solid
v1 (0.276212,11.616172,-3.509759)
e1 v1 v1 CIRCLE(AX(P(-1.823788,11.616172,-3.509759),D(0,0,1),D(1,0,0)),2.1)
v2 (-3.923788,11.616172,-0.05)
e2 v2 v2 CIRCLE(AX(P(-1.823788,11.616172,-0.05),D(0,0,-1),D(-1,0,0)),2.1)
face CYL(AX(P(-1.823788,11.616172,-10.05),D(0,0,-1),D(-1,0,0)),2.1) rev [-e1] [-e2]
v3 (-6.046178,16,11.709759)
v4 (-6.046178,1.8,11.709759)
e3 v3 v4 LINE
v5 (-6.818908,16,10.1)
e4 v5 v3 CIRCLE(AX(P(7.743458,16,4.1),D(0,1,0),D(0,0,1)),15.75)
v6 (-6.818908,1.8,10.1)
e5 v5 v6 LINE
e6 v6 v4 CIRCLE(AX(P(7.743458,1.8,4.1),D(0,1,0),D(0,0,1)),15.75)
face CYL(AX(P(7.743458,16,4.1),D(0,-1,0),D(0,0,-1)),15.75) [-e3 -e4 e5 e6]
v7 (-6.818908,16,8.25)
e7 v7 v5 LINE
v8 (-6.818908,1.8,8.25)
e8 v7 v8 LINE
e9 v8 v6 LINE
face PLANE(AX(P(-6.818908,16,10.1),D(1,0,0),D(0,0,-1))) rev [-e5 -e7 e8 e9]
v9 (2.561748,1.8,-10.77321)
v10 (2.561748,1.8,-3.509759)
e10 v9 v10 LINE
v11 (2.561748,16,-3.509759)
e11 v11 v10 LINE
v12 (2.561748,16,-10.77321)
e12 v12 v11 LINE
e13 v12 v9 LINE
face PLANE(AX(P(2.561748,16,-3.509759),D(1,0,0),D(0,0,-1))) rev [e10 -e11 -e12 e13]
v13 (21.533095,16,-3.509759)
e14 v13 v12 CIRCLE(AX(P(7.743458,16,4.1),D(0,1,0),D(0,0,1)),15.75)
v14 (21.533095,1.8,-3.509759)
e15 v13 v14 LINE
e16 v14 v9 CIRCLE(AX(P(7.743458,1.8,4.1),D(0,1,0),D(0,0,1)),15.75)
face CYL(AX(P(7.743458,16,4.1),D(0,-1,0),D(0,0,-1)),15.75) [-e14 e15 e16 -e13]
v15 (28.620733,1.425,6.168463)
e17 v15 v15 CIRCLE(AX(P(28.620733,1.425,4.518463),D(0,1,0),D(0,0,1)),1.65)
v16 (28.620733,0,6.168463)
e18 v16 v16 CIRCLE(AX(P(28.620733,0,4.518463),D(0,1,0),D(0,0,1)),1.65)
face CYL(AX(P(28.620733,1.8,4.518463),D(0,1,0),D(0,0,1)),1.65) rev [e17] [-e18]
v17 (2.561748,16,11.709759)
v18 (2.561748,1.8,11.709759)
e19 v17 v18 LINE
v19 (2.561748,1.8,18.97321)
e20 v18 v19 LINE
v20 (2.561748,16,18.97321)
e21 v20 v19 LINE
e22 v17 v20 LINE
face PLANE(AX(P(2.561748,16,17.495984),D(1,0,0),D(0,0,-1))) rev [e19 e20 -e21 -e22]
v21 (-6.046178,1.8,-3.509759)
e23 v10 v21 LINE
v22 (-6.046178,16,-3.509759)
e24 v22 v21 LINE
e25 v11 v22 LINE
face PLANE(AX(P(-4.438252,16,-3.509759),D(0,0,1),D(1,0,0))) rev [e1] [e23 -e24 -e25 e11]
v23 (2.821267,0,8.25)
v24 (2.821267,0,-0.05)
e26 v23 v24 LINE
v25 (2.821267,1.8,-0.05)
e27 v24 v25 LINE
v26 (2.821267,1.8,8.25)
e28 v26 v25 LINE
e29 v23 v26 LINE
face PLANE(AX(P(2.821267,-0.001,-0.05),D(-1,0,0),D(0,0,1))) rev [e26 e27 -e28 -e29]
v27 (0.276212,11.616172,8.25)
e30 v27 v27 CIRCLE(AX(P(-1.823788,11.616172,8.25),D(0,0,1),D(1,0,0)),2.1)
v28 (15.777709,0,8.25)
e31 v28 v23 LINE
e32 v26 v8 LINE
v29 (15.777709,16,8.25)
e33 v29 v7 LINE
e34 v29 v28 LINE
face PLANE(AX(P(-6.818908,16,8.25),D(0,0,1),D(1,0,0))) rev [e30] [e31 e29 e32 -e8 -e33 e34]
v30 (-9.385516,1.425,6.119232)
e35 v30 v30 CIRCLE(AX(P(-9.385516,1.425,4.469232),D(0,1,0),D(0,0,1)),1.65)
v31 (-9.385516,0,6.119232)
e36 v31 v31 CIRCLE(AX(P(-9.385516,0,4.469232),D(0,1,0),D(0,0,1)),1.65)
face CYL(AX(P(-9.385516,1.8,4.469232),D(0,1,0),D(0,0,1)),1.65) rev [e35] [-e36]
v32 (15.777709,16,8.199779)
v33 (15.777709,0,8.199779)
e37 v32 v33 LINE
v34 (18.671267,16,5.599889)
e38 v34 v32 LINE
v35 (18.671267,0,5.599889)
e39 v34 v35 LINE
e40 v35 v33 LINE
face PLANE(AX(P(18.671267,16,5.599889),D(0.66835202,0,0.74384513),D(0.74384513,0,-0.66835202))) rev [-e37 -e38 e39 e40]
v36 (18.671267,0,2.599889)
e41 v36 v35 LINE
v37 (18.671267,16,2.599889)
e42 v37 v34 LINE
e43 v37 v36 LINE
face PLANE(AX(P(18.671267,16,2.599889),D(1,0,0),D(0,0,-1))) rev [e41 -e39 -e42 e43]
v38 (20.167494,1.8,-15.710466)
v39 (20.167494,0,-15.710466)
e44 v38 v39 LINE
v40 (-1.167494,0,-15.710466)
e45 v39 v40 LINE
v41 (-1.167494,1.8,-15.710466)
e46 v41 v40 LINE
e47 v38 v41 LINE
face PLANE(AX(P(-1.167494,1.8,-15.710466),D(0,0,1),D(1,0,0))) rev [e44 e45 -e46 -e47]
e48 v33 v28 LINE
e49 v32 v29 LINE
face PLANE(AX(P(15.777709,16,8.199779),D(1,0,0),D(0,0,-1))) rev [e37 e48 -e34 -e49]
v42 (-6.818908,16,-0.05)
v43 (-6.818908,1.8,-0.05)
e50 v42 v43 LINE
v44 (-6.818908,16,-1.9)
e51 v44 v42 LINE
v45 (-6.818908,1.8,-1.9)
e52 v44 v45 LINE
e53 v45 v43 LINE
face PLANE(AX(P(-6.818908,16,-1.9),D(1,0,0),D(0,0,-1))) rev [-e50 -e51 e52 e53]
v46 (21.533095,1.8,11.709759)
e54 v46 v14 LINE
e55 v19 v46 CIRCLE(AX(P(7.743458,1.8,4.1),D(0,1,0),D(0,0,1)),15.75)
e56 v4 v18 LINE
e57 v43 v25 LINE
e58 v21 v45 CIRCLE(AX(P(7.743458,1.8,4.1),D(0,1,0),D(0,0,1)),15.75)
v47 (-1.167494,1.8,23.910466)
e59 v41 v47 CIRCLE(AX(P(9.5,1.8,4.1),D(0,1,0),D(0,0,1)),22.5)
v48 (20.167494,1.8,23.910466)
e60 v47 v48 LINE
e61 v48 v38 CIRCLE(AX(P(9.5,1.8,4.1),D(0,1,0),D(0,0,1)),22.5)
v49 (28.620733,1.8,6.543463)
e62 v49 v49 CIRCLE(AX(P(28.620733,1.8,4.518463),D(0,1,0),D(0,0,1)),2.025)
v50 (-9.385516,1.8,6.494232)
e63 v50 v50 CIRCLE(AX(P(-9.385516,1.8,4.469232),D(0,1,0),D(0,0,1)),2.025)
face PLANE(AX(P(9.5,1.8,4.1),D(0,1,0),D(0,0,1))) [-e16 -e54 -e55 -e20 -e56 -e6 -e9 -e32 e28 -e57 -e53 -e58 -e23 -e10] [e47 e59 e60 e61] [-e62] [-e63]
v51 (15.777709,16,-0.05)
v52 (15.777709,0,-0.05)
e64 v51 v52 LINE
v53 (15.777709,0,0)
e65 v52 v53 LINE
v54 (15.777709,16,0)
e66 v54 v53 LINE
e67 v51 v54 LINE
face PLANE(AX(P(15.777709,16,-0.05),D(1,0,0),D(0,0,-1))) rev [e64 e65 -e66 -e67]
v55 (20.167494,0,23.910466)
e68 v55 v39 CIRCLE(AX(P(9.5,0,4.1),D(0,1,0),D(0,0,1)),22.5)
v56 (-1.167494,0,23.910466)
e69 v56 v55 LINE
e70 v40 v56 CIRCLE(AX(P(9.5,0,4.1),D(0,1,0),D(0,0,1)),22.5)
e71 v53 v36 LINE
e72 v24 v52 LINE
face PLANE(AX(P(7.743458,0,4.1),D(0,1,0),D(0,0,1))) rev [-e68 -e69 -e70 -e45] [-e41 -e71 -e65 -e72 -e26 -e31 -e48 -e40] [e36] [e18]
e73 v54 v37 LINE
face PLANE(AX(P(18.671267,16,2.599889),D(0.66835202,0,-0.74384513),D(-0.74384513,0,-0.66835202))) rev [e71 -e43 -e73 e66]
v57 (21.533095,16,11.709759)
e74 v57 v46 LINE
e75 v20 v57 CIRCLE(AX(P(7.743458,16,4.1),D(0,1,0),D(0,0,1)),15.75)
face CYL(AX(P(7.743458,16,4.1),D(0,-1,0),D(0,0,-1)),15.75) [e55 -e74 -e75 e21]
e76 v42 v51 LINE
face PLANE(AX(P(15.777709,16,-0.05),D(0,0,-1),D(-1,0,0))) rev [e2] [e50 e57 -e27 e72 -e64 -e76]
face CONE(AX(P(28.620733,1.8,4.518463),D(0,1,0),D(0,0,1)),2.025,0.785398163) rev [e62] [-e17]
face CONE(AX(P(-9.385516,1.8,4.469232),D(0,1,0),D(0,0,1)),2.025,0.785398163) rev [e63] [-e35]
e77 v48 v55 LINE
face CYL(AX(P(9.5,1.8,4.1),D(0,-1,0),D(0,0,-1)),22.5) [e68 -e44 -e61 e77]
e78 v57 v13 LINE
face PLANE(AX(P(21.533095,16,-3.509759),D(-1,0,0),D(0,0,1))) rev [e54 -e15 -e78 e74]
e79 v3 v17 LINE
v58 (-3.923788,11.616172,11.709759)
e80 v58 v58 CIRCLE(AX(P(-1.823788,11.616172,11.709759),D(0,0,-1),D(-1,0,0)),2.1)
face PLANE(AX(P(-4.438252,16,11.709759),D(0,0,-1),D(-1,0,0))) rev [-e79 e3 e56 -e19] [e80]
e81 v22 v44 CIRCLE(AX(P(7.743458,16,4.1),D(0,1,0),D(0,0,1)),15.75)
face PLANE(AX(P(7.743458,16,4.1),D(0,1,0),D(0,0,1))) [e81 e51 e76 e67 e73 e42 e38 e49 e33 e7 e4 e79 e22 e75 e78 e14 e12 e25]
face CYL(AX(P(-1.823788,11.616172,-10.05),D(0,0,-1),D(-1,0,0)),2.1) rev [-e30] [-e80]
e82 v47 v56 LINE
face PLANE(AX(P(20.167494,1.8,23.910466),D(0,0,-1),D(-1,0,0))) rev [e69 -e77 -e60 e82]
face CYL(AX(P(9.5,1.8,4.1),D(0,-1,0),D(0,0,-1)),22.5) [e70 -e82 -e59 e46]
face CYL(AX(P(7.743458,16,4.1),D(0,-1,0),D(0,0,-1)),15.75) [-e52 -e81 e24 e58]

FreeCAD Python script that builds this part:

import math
import FreeCAD as App
import Part
import Sketcher
Q = App.Units.Quantity

doc = App.newDocument("Part")
body = doc.addObject("PartDesign::Body", "Body")

# Sketch on XZ plane
sketch1 = doc.addObject("Sketcher::SketchObject", "Sketch")
body.addObject(sketch1)
sketch1.AttachmentSupport = (doc.XZ_Plane, [""])
sketch1.MapMode = "FlatFace"
sketch1.addGeometry([
    Part.LineSegment(App.Vector(2.56, -3.51, 0), App.Vector(-6.05, -3.51, 0)),  # 0
    Part.ArcOfCircle(Part.Circle(App.Vector(7.74, 4.1, 0), App.Vector(0, 0, 1), 15.75), math.radians(-157.61), math.radians(-151.11)),  # 1
    Part.LineSegment(App.Vector(-6.82, -1.9, 0), App.Vector(-6.82, -0.05, 0)),  # 2
    Part.LineSegment(App.Vector(-6.82, -0.05, 0), App.Vector(15.78, -0.05, 0)),  # 3
    Part.LineSegment(App.Vector(15.78, -0.05, 0), App.Vector(15.78, 0, 0)),  # 4
    Part.LineSegment(App.Vector(15.78, 0, 0), App.Vector(18.67, 2.6, 0)),  # 5
    Part.LineSegment(App.Vector(18.67, 2.6, 0), App.Vector(18.67, 5.6, 0)),  # 6
    Part.LineSegment(App.Vector(18.67, 5.6, 0), App.Vector(15.78, 8.2, 0)),  # 7
    Part.LineSegment(App.Vector(15.78, 8.2, 0), App.Vector(15.78, 8.25, 0)),  # 8
    Part.LineSegment(App.Vector(15.78, 8.25, 0), App.Vector(-6.82, 8.25, 0)),  # 9
    Part.LineSegment(App.Vector(-6.82, 8.25, 0), App.Vector(-6.82, 10.1, 0)),  # 10
    Part.ArcOfCircle(Part.Circle(App.Vector(7.74, 4.1, 0), App.Vector(0, 0, 1), 15.75), math.radians(151.11), math.radians(157.61)),  # 11
    Part.LineSegment(App.Vector(-6.05, 11.71, 0), App.Vector(2.56, 11.71, 0)),  # 12
    Part.LineSegment(App.Vector(2.56, 11.71, 0), App.Vector(2.56, 18.97, 0)),  # 13
    Part.ArcOfCircle(Part.Circle(App.Vector(7.74, 4.1, 0), App.Vector(0, 0, 1), 15.75), math.radians(29), math.radians(109)),  # 14
    Part.LineSegment(App.Vector(21.53, 11.71, 0), App.Vector(21.53, -3.51, 0)),  # 15
    Part.ArcOfCircle(Part.Circle(App.Vector(7.74, 4.1, 0), App.Vector(0, 0, 1), 15.75), math.radians(-109), math.radians(-29)),  # 16
    Part.LineSegment(App.Vector(2.56, -10.77, 0), App.Vector(2.56, -3.51, 0)),  # 17
], False)
sketch1.addConstraint([
    Sketcher.Constraint("Coincident", 0, 2, 1, 2),
    Sketcher.Constraint("Coincident", 1, 1, 2, 1),
    Sketcher.Constraint("Coincident", 2, 2, 3, 1),
    Sketcher.Constraint("Coincident", 3, 2, 4, 1),
    Sketcher.Constraint("Coincident", 4, 2, 5, 1),
    Sketcher.Constraint("Coincident", 5, 2, 6, 1),
    Sketcher.Constraint("Coincident", 6, 2, 7, 1),
    Sketcher.Constraint("Coincident", 7, 2, 8, 1),
    Sketcher.Constraint("Coincident", 8, 2, 9, 1),
    Sketcher.Constraint("Coincident", 9, 2, 10, 1),
    Sketcher.Constraint("Coincident", 10, 2, 11, 2),
    Sketcher.Constraint("Coincident", 11, 1, 12, 1),
    Sketcher.Constraint("Coincident", 12, 2, 13, 1),
    Sketcher.Constraint("Coincident", 13, 2, 14, 2),
    Sketcher.Constraint("Coincident", 14, 1, 15, 1),
    Sketcher.Constraint("Coincident", 15, 2, 16, 2),
    Sketcher.Constraint("Coincident", 16, 1, 17, 1),
    Sketcher.Constraint("Coincident", 17, 2, 0, 1),
    Sketcher.Constraint("Horizontal", 0),
    Sketcher.Constraint("Vertical", 2),
    Sketcher.Constraint("Horizontal", 3),
    Sketcher.Constraint("Vertical", 4),
    Sketcher.Constraint("Vertical", 6),
    Sketcher.Constraint("Vertical", 8),
    Sketcher.Constraint("Horizontal", 9),
    Sketcher.Constraint("Vertical", 10),
    Sketcher.Constraint("Horizontal", 12),
    Sketcher.Constraint("Vertical", 13),
    Sketcher.Constraint("Vertical", 15),
    Sketcher.Constraint("Vertical", 17),
    Sketcher.Constraint("Coincident", 11, 3, 1, 3),
    Sketcher.Constraint("Coincident", 14, 3, 1, 3),
    Sketcher.Constraint("Coincident", 16, 3, 1, 3),
    Sketcher.Constraint("Equal", 1, 11),
    Sketcher.Constraint("Equal", 11, 14),
    Sketcher.Constraint("Equal", 14, 16),
    Sketcher.Constraint("PointOnObject", 4, 2, -1),
    Sketcher.Constraint("Horizontal", 12, 2, 14, 1),
    Sketcher.Constraint("Horizontal", 0, 2, 15, 2),
    Sketcher.Constraint("Vertical", 4, 2, 7, 2),
    Sketcher.Constraint("Vertical", 2, 2, 9, 2),
    Sketcher.Constraint("Vertical", 13, 2, 16, 1),
    Sketcher.Constraint("Equal", 2, 10),
    Sketcher.Constraint("Equal", 5, 7),
    Sketcher.Constraint("DistanceY", 6, 1, 6, 2, Q("3 mm")),
    Sketcher.Constraint("Radius", 1, Q("15.75 mm")),
    Sketcher.Constraint("DistanceY", 1, 1, 1, 3, Q("6 mm")),
    Sketcher.Constraint("DistanceY", 2, 1, 2, 2, Q("1.85 mm")),
    Sketcher.Constraint("DistanceY", 4, 1, 4, 2, Q("0.05 mm")),
    Sketcher.Constraint("Angle", 5, Q("41.94 deg")),
    Sketcher.Constraint("Distance", 5, Q("3.89 mm")),
    Sketcher.Constraint("DistanceY", 13, 1, 13, 2, Q("7.263451 mm")),
    Sketcher.Constraint("DistanceX", 0, 2, 0, 1, Q("8.607926 mm")),
    Sketcher.Constraint("DistanceX", 3, 1, 3, 2, Q("22.596617 mm")),
    Sketcher.Constraint("DistanceX", -1, 1, 1, 3, Q("7.743458 mm")),
])
pad1 = doc.addObject("PartDesign::Pad", "Pad")
body.addObject(pad1)
pad1.Profile = sketch1
pad1.Length = 16
pad1.Reversed = True

# Sketch on XZ plane
sketch2 = doc.addObject("Sketcher::SketchObject", "Sketch001")
body.addObject(sketch2)
sketch2.AttachmentSupport = (doc.XZ_Plane, [""])
sketch2.MapMode = "FlatFace"
sketch2.addGeometry([
    Part.LineSegment(App.Vector(20, -16, 0), App.Vector(-1, -16, 0)),
    Part.ArcOfCircle(Part.Circle(App.Vector(10, 4, 0), App.Vector(0, 0, 1), 22), math.radians(118), math.radians(242)),
    Part.LineSegment(App.Vector(-1, 24, 0), App.Vector(20, 24, 0)),
    Part.ArcOfCircle(Part.Circle(App.Vector(10, 4, 0), App.Vector(0, 0, 1), 22), math.radians(-62), math.radians(62)),
], False)
sketch2.addConstraint([
    Sketcher.Constraint("Coincident", 0, 2, 1, 2),
    Sketcher.Constraint("Coincident", 1, 1, 2, 1),
    Sketcher.Constraint("Coincident", 2, 2, 3, 2),
    Sketcher.Constraint("Coincident", 3, 1, 0, 1),
    Sketcher.Constraint("Horizontal", 0),
    Sketcher.Constraint("Horizontal", 2),
    Sketcher.Constraint("Coincident", 3, 3, 1, 3),
    Sketcher.Constraint("Equal", 1, 3),
    Sketcher.Constraint("Vertical", 0, 2, 1, 1),
    Sketcher.Constraint("Radius", 1, Q("22.5 mm")),
    Sketcher.Constraint("DistanceX", -1, 1, 1, 3, Q("9.5 mm")),
    Sketcher.Constraint("DistanceY", -1, 1, 1, 3, Q("4.1 mm")),
    Sketcher.Constraint("DistanceX", 0, 2, 0, 1, Q("21.334989 mm")),
])
pad2 = doc.addObject("PartDesign::Pad", "Pad001")
body.addObject(pad2)
pad2.Profile = sketch2
pad2.Length = 1.8
pad2.Reversed = True

# Sketch on YZ plane
sketch3 = doc.addObject("Sketcher::SketchObject", "Sketch002")
body.addObject(sketch3)
sketch3.AttachmentSupport = (doc.YZ_Plane, [""])
sketch3.MapMode = "FlatFace"
sketch3.AttachmentOffset = App.Placement(App.Vector(0, 0, 28.620733), App.Rotation())
sketch3.addGeometry([
    Part.LineSegment(App.Vector(0, 4.5, 0), App.Vector(1.8, 4.5, 0)),  # 0
    Part.LineSegment(App.Vector(1.8, 4.5, 0), App.Vector(1.8, 6.5, 0)),  # 1
    Part.LineSegment(App.Vector(1.8, 6.5, 0), App.Vector(1.4, 6.2, 0)),  # 2
    Part.LineSegment(App.Vector(1.4, 6.2, 0), App.Vector(0, 6.2, 0)),  # 3
    Part.LineSegment(App.Vector(0, 6.2, 0), App.Vector(0, 4.5, 0)),  # 4
], False)
sketch3.addGeometry(Part.LineSegment(App.Vector(1.8, 4.5, 0), App.Vector(0, 4.5, 0)), True)  # axis
sketch3.addConstraint([
    Sketcher.Constraint("Coincident", 0, 2, 1, 1),
    Sketcher.Constraint("Coincident", 1, 2, 2, 1),
    Sketcher.Constraint("Coincident", 2, 2, 3, 1),
    Sketcher.Constraint("Coincident", 3, 2, 4, 1),
    Sketcher.Constraint("Coincident", 4, 2, 0, 1),
    Sketcher.Constraint("Horizontal", 0),
    Sketcher.Constraint("Vertical", 1),
    Sketcher.Constraint("Horizontal", 3),
    Sketcher.Constraint("Vertical", 4),
    Sketcher.Constraint("Horizontal", 5),
    Sketcher.Constraint("Coincident", 5, 1, 0, 2),
    Sketcher.Constraint("PointOnObject", 3, 2, -2),
    Sketcher.Constraint("PointOnObject", 5, 2, -2),
    Sketcher.Constraint("Angle", 2, Q("-135 deg")),
    Sketcher.Constraint("DistanceX", 0, 1, 0, 2, Q("1.8 mm")),
    Sketcher.Constraint("DistanceY", 4, 2, 4, 1, Q("1.65 mm")),
    Sketcher.Constraint("DistanceX", 3, 2, 3, 1, Q("1.425 mm")),
    Sketcher.Constraint("DistanceY", -1, 1, 0, 2, Q("4.518463 mm")),
])
groove = doc.addObject("PartDesign::Groove", "Groove")
body.addObject(groove)
groove.Profile = sketch3
groove.ReferenceAxis = (sketch3, ["Axis0"])
groove.Angle = 360
doc.recompute()

datumline = doc.addObject("PartDesign::Line", "DatumLine")
body.addObject(datumline)
datumline.Placement = App.Placement(App.Vector(0, 0, 0), App.Rotation(App.Vector(0, 0, 1), App.Vector(-0.999999161, 0, -0.001295336)))
linearpattern = doc.addObject("PartDesign::LinearPattern", "LinearPattern")
body.addObject(linearpattern)
linearpattern.Originals = [groove]
linearpattern.Direction = (datumline, [""])
linearpattern.Mode = "offset"
linearpattern.Offset = 38.00628
linearpattern.Occurrences = 2
body.Tip = linearpattern

# Sketch on XY plane
sketch4 = doc.addObject("Sketcher::SketchObject", "Sketch003")
body.addObject(sketch4)
sketch4.AttachmentSupport = (doc.XY_Plane, [""])
sketch4.MapMode = "FlatFace"
sketch4.AttachmentOffset = App.Placement(App.Vector(0, 0, -10.05), App.Rotation())
sketch4.addGeometry(Part.Circle(App.Vector(-1.8, 11.6, 0), App.Vector(0, 0, 1), 2.1), False)
sketch4.addConstraint([
    Sketcher.Constraint("Diameter", 0, Q("4.2 mm")),
    Sketcher.Constraint("DistanceX", 0, 3, -1, 1, Q("1.823788 mm")),
    Sketcher.Constraint("DistanceY", -1, 1, 0, 3, Q("11.616172 mm")),
])
doc.recompute()
hole = doc.addObject("PartDesign::Hole", "Hole")
body.addObject(hole)
hole.Profile = sketch4
hole.ThreadType = "None"
hole.Diameter = 4.2
hole.DepthType = "ThroughAll"
hole.HoleCutType = "Countersink"
hole.HoleCutDiameter = 5.05
hole.HoleCutCountersinkAngle = 90
hole.Reversed = True

# Sketch on XZ plane
sketch5 = doc.addObject("Sketcher::SketchObject", "Sketch004")
body.addObject(sketch5)
sketch5.AttachmentSupport = (doc.XZ_Plane, [""])
sketch5.MapMode = "FlatFace"
sketch5.AttachmentOffset = App.Placement(App.Vector(0, 0, -16), App.Rotation())
sketch5.addGeometry([
    Part.LineSegment(App.Vector(18.67, 2.6, 0), App.Vector(15.78, 0, 0)),  # 0
    Part.LineSegment(App.Vector(15.78, 0, 0), App.Vector(15.78, -0.05, 0)),  # 1
    Part.LineSegment(App.Vector(15.78, -0.05, 0), App.Vector(2.82, -0.05, 0)),  # 2
    Part.LineSegment(App.Vector(2.82, -0.05, 0), App.Vector(2.82, 8.25, 0)),  # 3
    Part.LineSegment(App.Vector(2.82, 8.25, 0), App.Vector(15.78, 8.25, 0)),  # 4
    Part.LineSegment(App.Vector(15.78, 8.25, 0), App.Vector(15.78, 8.2, 0)),  # 5
    Part.LineSegment(App.Vector(15.78, 8.2, 0), App.Vector(18.67, 5.6, 0)),  # 6
    Part.LineSegment(App.Vector(18.67, 5.6, 0), App.Vector(18.67, 2.6, 0)),  # 7
], False)
sketch5.addConstraint([
    Sketcher.Constraint("Coincident", 0, 2, 1, 1),
    Sketcher.Constraint("Coincident", 1, 2, 2, 1),
    Sketcher.Constraint("Coincident", 2, 2, 3, 1),
    Sketcher.Constraint("Coincident", 3, 2, 4, 1),
    Sketcher.Constraint("Coincident", 4, 2, 5, 1),
    Sketcher.Constraint("Coincident", 5, 2, 6, 1),
    Sketcher.Constraint("Coincident", 6, 2, 7, 1),
    Sketcher.Constraint("Coincident", 7, 2, 0, 1),
    Sketcher.Constraint("Vertical", 1),
    Sketcher.Constraint("Horizontal", 2),
    Sketcher.Constraint("Vertical", 3),
    Sketcher.Constraint("Horizontal", 4),
    Sketcher.Constraint("Vertical", 5),
    Sketcher.Constraint("Vertical", 7),
    Sketcher.Constraint("PointOnObject", 0, 2, -1),
    Sketcher.Constraint("Vertical", 1, 2, 4, 2),
    Sketcher.Constraint("Equal", 0, 6),
    Sketcher.Constraint("DistanceY", 7, 2, 7, 1, Q("3 mm")),
    Sketcher.Constraint("DistanceY", 3, 1, 3, 2, Q("8.3 mm")),
    Sketcher.Constraint("DistanceY", 1, 2, 1, 1, Q("0.05 mm")),
    Sketcher.Constraint("Angle", 0, Q("-138.06 deg")),
    Sketcher.Constraint("Distance", 0, Q("3.89 mm")),
    Sketcher.Constraint("DistanceX", 3, 2, 6, 2, Q("15.85 mm")),
    Sketcher.Constraint("DistanceX", -1, 1, 0, 2, Q("15.777709 mm")),
])
pocket1 = doc.addObject("PartDesign::Pocket", "Pocket")
body.addObject(pocket1)
pocket1.Profile = sketch5
pocket1.Length = 16
pocket1.Reversed = True

doc.recompute()
